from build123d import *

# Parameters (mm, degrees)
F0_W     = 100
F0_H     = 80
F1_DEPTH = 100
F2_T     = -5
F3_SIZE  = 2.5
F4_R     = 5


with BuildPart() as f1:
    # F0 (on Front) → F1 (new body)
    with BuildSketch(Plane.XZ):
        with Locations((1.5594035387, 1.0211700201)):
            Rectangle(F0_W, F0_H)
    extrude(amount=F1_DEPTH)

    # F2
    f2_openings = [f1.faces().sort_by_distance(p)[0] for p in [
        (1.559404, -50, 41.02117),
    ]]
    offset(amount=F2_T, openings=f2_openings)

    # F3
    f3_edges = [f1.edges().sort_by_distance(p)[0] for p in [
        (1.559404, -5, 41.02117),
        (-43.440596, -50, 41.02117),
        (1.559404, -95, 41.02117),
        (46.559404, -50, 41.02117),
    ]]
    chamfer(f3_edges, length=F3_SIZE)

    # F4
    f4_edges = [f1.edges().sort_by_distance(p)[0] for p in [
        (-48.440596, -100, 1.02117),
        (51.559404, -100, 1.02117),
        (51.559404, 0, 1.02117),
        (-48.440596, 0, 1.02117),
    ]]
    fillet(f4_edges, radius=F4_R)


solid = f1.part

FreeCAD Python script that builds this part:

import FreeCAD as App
import Part
import Sketcher
from FreeCAD import Vector
Q = App.Units.Quantity


def edges_at(feature, points):
    """Names of the edges that pass closest to the given points."""
    edges = feature.Shape.Edges
    near = lambda p: min(range(len(edges)), key=lambda i: edges[i].distToShape(Part.Vertex(*p))[0])
    return sorted({f"Edge{near(p) + 1}" for p in points})


def faces_at(feature, points):
    """Names of the faces that lie closest to the given points."""
    faces = feature.Shape.Faces
    near = lambda p: min(range(len(faces)), key=lambda i: faces[i].distToShape(Part.Vertex(*p))[0])
    return sorted({f"Face{near(p) + 1}" for p in points})


def add_polygon(sketch, points):
    """Adds a closed chain of lines whose ends are joined by coincident constraints."""
    first, n = sketch.GeometryCount, len(points)
    for a, b in zip(points, points[1:] + points[:1]):
        sketch.addGeometry(Part.LineSegment(App.Vector(*a, 0), App.Vector(*b, 0)), False)
    for i in range(n):
        sketch.addConstraint(Sketcher.Constraint("Coincident", first + i, 2, first + (i + 1) % n, 1))

doc = App.newDocument("Part")
params = doc.addObject("Spreadsheet::Sheet", "Params")
for row, (alias, value) in enumerate([
    ("sketch1_width", "100 mm"),
    ("sketch1_height", "80 mm"),
    ("pad1_length", "100 mm"),
    ("thickness_wall", "5 mm"),
    ("chamfer_size", "2.5 mm"),
    ("fillet_radius", "5 mm"),
], start=1):
    params.set(f"A{row}", alias)
    params.set(f"B{row}", "=" + value)
    params.setAlias(f"B{row}", alias)

body = doc.addObject("PartDesign::Body", "Body")

# Sketch on XZ plane
sketch1 = body.newObject("Sketcher::SketchObject", "Sketch")
sketch1.AttachmentSupport = (doc.getObject("XZ_Plane"), [""])
sketch1.MapMode = "FlatFace"
add_polygon(sketch1, [(-48, 41), (-48, -39), (52, -39), (52, 41)])  # lines 0-3
sketch1.addConstraint([
    Sketcher.Constraint("Vertical", 0),
    Sketcher.Constraint("Horizontal", 1),
    Sketcher.Constraint("Vertical", 2),
    Sketcher.Constraint("Horizontal", 3),
    Sketcher.Constraint("DistanceX", 1, 1, 1, 2, Q("100 mm")),
    Sketcher.Constraint("DistanceY", 0, 2, 0, 1, Q("80 mm")),
    Sketcher.Constraint("DistanceY", 0, 2, -1, 1, Q("38.97883 mm")),
    Sketcher.Constraint("DistanceX", 0, 2, -1, 1, Q("48.440596 mm")),
])
sketch1.setExpression("Constraints[8]", "Params.sketch1_width")
sketch1.setExpression("Constraints[9]", "Params.sketch1_height")
pad1 = body.newObject("PartDesign::Pad", "Pad")
pad1.Profile = sketch1
pad1.setExpression("Length", "Params.pad1_length")
doc.recompute()

thickness = body.newObject("PartDesign::Thickness", "Thickness")
thickness.Base = (pad1, faces_at(pad1, [(1.559, -50, 41.021)]))
thickness.setExpression("Value", "Params.thickness_wall")
thickness.Reversed = True
thickness.Join = "Arc"
doc.recompute()

chamfer = body.newObject("PartDesign::Chamfer", "Chamfer")
chamfer.Base = (thickness, edges_at(thickness, [
    (1.559, -5, 41.021),
    (-43.441, -50, 41.021),
    (1.559, -95, 41.021),
    (46.559, -50, 41.021),
]))
chamfer.setExpression("Size", "Params.chamfer_size")
doc.recompute()

fillet = body.newObject("PartDesign::Fillet", "Fillet")
fillet.Base = (chamfer, edges_at(chamfer, [
    (-48.441, -100, 1.021),
    (51.559, -100, 1.021),
    (51.559, 0, 1.021),
    (-48.441, 0, 1.021),
]))
fillet.setExpression("Radius", "Params.fillet_radius")

doc.recompute()
